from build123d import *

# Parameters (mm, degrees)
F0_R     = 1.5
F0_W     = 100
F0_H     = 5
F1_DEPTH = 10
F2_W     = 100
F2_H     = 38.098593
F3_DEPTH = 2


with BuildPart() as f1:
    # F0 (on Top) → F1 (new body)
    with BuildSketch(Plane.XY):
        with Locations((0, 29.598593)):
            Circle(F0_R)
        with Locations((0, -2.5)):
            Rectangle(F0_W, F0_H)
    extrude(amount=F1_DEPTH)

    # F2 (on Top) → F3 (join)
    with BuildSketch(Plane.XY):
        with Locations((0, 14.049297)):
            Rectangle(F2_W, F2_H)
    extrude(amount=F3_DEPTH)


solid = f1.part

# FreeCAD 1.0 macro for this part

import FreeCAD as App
import Part
import Sketcher
from FreeCAD import Vector


def add_polygon(sketch, points):
    """Adds a closed chain of lines whose ends are joined by coincident constraints."""
    first, n = sketch.GeometryCount, len(points)
    for a, b in zip(points, points[1:] + points[:1]):
        sketch.addGeometry(Part.LineSegment(App.Vector(*a, 0), App.Vector(*b, 0)), False)
    for i in range(n):
        sketch.addConstraint(Sketcher.Constraint("Coincident", first + i, 2, first + (i + 1) % n, 1))

doc = App.newDocument("Part")
body = doc.addObject("PartDesign::Body", "Body")
body.AllowCompound = True

# Sketch on XY plane
sketch1 = doc.addObject("Sketcher::SketchObject", "Sketch")
body.addObject(sketch1)
sketch1.AttachmentSupport = (doc.XY_Plane, [""])
sketch1.MapMode = "FlatFace"
sketch1.addGeometry(Part.Circle(Vector(0, 29.6, 0), Vector(0, 0, 1), 1.5), False)  # 0
add_polygon(sketch1, [(-50, 0), (-50, -5), (50, -5), (50, 0)])  # lines 1-4
sketch1.addConstraint(Sketcher.Constraint("Vertical", 1))
sketch1.addConstraint(Sketcher.Constraint("Horizontal", 2))
sketch1.addConstraint(Sketcher.Constraint("Vertical", 3))
sketch1.addConstraint(Sketcher.Constraint("Horizontal", 4))
sketch1.addConstraint(Sketcher.Constraint("Symmetric", 3, 2, 4, 2, -1, 1))
sketch1.addConstraint(Sketcher.Constraint("PointOnObject", 0, 3, -2))
sketch1.addConstraint(Sketcher.Constraint("Diameter", 0, 3.0))
sketch1.addConstraint(Sketcher.Constraint("DistanceX", 2, 1, 2, 2, 100.0))
sketch1.addConstraint(Sketcher.Constraint("DistanceY", 1, 2, 1, 1, 5.0))
sketch1.addConstraint(Sketcher.Constraint("DistanceY", -1, 1, 0, 3, 29.598593))
pad1 = doc.addObject("PartDesign::Pad", "Pad")
body.addObject(pad1)
pad1.Profile = sketch1
pad1.Length = 10

# Sketch on XY plane
sketch2 = doc.addObject("Sketcher::SketchObject", "Sketch001")
body.addObject(sketch2)
sketch2.AttachmentSupport = (doc.XY_Plane, [""])
sketch2.MapMode = "FlatFace"
add_polygon(sketch2, [(-50, 33), (-50, -5), (50, -5), (50, 33)])  # lines 0-3
sketch2.addConstraint(Sketcher.Constraint("Vertical", 0))
sketch2.addConstraint(Sketcher.Constraint("Horizontal", 1))
sketch2.addConstraint(Sketcher.Constraint("Vertical", 2))
sketch2.addConstraint(Sketcher.Constraint("Horizontal", 3))
sketch2.addConstraint(Sketcher.Constraint("DistanceX", 1, 1, 1, 2, 100.0))
sketch2.addConstraint(Sketcher.Constraint("DistanceX", 0, 2, -1, 1, 50.0))
sketch2.addConstraint(Sketcher.Constraint("DistanceY", 0, 2, -1, 1, 5.0))
sketch2.addConstraint(Sketcher.Constraint("DistanceY", 0, 2, 0, 1, 38.098593))
pad2 = doc.addObject("PartDesign::Pad", "Pad001")
body.addObject(pad2)
pad2.Profile = sketch2
pad2.Length = 2

doc.recompute()
